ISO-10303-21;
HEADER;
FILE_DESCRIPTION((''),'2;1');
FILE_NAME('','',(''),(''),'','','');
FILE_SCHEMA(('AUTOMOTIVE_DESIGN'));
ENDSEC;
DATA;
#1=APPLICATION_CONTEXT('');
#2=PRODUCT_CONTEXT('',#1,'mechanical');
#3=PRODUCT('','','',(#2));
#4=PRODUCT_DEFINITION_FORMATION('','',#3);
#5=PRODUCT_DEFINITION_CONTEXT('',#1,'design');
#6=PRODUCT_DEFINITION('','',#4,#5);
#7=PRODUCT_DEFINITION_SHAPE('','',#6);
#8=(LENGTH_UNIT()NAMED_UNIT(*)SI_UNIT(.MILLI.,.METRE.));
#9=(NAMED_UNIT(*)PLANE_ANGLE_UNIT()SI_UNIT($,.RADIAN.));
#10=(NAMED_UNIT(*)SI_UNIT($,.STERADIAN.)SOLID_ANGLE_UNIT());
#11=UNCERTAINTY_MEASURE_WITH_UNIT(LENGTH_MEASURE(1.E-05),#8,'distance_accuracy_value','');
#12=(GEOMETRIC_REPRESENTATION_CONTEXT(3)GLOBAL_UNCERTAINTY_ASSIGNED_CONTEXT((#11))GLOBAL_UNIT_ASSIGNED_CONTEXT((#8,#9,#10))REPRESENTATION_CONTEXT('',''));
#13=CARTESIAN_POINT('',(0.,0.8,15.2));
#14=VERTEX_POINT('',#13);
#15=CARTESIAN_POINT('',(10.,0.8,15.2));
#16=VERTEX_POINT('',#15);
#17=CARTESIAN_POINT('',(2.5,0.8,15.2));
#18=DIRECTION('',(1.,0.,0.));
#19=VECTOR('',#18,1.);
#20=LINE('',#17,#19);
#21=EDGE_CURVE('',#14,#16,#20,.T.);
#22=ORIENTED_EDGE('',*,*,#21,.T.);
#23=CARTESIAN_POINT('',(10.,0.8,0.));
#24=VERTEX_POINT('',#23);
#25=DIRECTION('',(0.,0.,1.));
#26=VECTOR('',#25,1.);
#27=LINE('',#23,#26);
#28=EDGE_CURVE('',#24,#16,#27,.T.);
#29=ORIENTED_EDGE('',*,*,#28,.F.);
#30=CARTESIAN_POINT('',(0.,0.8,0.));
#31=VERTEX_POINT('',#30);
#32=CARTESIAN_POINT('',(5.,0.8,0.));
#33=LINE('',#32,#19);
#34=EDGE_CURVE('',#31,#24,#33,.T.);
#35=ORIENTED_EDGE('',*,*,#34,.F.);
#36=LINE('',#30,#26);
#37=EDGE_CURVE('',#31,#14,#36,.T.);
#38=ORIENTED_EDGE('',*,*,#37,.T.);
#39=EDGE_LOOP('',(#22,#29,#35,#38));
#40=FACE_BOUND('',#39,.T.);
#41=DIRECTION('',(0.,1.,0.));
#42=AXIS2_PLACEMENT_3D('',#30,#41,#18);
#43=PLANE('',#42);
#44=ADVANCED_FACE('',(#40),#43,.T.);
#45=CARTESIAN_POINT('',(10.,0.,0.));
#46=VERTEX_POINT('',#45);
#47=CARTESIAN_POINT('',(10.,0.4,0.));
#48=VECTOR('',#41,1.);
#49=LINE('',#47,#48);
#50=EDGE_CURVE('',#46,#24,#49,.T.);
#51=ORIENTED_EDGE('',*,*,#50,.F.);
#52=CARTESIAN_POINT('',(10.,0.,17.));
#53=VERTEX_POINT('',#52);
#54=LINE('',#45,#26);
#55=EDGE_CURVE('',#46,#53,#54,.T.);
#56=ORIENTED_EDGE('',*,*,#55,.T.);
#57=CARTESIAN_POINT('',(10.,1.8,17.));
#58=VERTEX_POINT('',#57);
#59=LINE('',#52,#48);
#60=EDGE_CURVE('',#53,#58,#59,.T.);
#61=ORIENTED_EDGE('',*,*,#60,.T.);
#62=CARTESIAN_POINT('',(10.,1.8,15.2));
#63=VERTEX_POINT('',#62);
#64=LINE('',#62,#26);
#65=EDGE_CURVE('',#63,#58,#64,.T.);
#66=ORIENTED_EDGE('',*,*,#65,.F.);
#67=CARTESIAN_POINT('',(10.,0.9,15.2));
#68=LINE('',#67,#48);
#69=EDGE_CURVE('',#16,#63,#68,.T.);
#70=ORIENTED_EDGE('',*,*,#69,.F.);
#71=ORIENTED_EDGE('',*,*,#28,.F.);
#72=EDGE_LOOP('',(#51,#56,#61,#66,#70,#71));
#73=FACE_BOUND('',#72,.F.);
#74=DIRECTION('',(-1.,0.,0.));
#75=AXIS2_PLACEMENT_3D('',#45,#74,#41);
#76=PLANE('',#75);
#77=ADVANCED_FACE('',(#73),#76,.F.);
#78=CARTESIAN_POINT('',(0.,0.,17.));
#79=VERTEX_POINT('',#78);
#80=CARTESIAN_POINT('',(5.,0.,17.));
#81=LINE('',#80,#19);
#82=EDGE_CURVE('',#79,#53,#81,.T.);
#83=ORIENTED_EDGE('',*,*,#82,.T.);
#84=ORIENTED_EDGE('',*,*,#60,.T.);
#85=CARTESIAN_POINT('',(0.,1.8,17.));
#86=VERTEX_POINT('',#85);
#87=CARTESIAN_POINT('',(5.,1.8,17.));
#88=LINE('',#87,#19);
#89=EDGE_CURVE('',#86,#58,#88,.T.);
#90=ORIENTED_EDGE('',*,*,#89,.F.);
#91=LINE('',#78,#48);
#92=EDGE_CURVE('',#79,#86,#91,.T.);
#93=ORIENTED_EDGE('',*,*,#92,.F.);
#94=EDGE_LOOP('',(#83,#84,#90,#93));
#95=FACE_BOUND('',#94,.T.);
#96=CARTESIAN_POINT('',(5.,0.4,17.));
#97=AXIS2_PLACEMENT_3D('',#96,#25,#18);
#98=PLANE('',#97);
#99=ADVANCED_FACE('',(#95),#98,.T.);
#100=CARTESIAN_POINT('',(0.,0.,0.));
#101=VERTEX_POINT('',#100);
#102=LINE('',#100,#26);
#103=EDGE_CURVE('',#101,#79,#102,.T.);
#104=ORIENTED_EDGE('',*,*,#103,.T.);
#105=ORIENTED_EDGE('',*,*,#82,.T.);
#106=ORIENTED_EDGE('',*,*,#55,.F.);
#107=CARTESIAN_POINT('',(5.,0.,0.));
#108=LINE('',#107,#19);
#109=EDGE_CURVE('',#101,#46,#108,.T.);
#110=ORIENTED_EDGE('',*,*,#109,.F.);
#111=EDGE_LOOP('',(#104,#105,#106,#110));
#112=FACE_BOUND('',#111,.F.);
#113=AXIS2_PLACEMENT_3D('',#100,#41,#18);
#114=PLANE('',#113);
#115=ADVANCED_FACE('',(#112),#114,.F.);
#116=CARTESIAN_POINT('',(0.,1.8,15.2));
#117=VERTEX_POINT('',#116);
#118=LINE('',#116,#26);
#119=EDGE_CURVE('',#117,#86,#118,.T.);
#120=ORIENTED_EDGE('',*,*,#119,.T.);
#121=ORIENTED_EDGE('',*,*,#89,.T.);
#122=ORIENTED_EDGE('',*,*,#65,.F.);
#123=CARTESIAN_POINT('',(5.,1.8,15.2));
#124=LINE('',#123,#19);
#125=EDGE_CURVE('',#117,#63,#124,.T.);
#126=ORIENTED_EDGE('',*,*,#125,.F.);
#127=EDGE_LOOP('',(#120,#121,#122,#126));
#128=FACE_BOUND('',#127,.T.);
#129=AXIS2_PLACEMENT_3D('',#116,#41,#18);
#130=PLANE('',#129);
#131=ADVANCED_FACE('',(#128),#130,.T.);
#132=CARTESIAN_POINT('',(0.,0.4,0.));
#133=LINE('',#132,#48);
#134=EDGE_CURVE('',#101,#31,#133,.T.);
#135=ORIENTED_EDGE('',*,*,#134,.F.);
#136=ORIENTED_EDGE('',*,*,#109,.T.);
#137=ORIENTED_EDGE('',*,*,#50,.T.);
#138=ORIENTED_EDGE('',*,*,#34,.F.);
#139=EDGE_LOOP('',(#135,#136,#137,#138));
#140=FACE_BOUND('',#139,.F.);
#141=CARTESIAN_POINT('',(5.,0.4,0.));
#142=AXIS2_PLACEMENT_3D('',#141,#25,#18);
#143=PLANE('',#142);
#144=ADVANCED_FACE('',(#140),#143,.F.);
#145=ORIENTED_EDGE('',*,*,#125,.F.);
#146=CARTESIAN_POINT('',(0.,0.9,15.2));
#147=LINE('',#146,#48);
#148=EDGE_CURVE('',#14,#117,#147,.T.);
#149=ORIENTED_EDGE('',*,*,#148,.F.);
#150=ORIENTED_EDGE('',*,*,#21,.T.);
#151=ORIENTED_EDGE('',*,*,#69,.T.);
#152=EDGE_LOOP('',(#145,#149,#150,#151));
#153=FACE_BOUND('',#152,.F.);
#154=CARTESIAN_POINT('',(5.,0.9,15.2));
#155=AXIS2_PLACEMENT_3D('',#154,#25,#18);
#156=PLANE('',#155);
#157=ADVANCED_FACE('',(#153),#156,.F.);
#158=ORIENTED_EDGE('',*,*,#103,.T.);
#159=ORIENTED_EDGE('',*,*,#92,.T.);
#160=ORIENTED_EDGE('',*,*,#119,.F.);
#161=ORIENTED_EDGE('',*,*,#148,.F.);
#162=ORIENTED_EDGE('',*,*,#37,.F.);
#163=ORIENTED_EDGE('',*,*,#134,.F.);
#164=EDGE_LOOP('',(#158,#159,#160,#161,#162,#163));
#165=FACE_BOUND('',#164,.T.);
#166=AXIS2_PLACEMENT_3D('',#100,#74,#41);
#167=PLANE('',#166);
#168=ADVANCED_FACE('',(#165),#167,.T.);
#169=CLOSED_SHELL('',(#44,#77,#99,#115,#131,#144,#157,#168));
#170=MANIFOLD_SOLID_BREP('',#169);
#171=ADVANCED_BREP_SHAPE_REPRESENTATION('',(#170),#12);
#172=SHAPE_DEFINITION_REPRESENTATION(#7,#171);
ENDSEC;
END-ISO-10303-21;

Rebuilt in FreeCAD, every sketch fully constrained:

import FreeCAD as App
import Part
import Sketcher

V = App.Vector


def add_polygon(sketch, points):
    """Adds a closed chain of lines whose ends are joined by coincident constraints."""
    first, n = sketch.GeometryCount, len(points)
    for a, b in zip(points, points[1:] + points[:1]):
        sketch.addGeometry(Part.LineSegment(App.Vector(*a, 0), App.Vector(*b, 0)), False)
    for i in range(n):
        sketch.addConstraint(Sketcher.Constraint("Coincident", first + i, 2, first + (i + 1) % n, 1))

doc = App.newDocument("Part")
params = doc.addObject("Spreadsheet::Sheet", "Params")
for row, (alias, value) in enumerate([
    ("sketch1_width", "10 mm"),
    ("sketch1_height", "1.8 mm"),
    ("pad1_length", "1.8 mm"),
    ("sketch2_width", "10 mm"),
    ("sketch2_height", "0.8 mm"),
    ("pad2_length", "17 mm"),
], start=1):
    params.set(f"A{row}", alias)
    params.set(f"B{row}", "=" + value)
    params.setAlias(f"B{row}", alias)

body = doc.addObject("PartDesign::Body", "Body")

sketch1 = body.newObject("Sketcher::SketchObject", "Sketch")
sketch1.AttachmentSupport = (doc.getObject("XY_Plane"), [""])
sketch1.MapMode = "FlatFace"
sketch1.AttachmentOffset = App.Placement(V(0, 0, 15.2), App.Rotation())
add_polygon(sketch1, [(0, 1.8), (0, 0), (10, 0), (10, 1.8)])
sketch1.addConstraint([
    Sketcher.Constraint("Vertical", 0),
    Sketcher.Constraint("Horizontal", 1),
    Sketcher.Constraint("Vertical", 2),
    Sketcher.Constraint("Horizontal", 3),
    Sketcher.Constraint("Coincident", 0, 2, -1, 1),
    Sketcher.Constraint("DistanceX", 1, 1, 1, 2, 10.0),
    Sketcher.Constraint("DistanceY", 0, 2, 0, 1, 1.8),
])
sketch1.setExpression("Constraints[9]", "Params.sketch1_width")
sketch1.setExpression("Constraints[10]", "Params.sketch1_height")
pad1 = body.newObject("PartDesign::Pad", "Pad")
pad1.Profile = sketch1
pad1.setExpression("Length", "Params.pad1_length")
body2 = doc.addObject("PartDesign::Body", "Body001")

sketch2 = body2.newObject("Sketcher::SketchObject", "Sketch001")
sketch2.AttachmentSupport = (doc.getObject("XY_Plane001"), [""])
sketch2.MapMode = "FlatFace"
add_polygon(sketch2, [(0, 0.8), (0, 0), (10, 0), (10, 0.8)])
sketch2.addConstraint([
    Sketcher.Constraint("Vertical", 0),
    Sketcher.Constraint("Horizontal", 1),
    Sketcher.Constraint("Vertical", 2),
    Sketcher.Constraint("Horizontal", 3),
    Sketcher.Constraint("Coincident", 0, 2, -1, 1),
    Sketcher.Constraint("DistanceX", 1, 1, 1, 2, 10.0),
    Sketcher.Constraint("DistanceY", 0, 2, 0, 1, 0.8),
])
sketch2.setExpression("Constraints[9]", "Params.sketch2_width")
sketch2.setExpression("Constraints[10]", "Params.sketch2_height")
pad2 = body2.newObject("PartDesign::Pad", "Pad001")
pad2.Profile = sketch2
pad2.setExpression("Length", "Params.pad2_length")
doc.recompute()

boolean = body2.newObject("PartDesign::Boolean", "Boolean")
boolean.Type = "Fuse"
boolean.addObjects([body])

doc.recompute()
